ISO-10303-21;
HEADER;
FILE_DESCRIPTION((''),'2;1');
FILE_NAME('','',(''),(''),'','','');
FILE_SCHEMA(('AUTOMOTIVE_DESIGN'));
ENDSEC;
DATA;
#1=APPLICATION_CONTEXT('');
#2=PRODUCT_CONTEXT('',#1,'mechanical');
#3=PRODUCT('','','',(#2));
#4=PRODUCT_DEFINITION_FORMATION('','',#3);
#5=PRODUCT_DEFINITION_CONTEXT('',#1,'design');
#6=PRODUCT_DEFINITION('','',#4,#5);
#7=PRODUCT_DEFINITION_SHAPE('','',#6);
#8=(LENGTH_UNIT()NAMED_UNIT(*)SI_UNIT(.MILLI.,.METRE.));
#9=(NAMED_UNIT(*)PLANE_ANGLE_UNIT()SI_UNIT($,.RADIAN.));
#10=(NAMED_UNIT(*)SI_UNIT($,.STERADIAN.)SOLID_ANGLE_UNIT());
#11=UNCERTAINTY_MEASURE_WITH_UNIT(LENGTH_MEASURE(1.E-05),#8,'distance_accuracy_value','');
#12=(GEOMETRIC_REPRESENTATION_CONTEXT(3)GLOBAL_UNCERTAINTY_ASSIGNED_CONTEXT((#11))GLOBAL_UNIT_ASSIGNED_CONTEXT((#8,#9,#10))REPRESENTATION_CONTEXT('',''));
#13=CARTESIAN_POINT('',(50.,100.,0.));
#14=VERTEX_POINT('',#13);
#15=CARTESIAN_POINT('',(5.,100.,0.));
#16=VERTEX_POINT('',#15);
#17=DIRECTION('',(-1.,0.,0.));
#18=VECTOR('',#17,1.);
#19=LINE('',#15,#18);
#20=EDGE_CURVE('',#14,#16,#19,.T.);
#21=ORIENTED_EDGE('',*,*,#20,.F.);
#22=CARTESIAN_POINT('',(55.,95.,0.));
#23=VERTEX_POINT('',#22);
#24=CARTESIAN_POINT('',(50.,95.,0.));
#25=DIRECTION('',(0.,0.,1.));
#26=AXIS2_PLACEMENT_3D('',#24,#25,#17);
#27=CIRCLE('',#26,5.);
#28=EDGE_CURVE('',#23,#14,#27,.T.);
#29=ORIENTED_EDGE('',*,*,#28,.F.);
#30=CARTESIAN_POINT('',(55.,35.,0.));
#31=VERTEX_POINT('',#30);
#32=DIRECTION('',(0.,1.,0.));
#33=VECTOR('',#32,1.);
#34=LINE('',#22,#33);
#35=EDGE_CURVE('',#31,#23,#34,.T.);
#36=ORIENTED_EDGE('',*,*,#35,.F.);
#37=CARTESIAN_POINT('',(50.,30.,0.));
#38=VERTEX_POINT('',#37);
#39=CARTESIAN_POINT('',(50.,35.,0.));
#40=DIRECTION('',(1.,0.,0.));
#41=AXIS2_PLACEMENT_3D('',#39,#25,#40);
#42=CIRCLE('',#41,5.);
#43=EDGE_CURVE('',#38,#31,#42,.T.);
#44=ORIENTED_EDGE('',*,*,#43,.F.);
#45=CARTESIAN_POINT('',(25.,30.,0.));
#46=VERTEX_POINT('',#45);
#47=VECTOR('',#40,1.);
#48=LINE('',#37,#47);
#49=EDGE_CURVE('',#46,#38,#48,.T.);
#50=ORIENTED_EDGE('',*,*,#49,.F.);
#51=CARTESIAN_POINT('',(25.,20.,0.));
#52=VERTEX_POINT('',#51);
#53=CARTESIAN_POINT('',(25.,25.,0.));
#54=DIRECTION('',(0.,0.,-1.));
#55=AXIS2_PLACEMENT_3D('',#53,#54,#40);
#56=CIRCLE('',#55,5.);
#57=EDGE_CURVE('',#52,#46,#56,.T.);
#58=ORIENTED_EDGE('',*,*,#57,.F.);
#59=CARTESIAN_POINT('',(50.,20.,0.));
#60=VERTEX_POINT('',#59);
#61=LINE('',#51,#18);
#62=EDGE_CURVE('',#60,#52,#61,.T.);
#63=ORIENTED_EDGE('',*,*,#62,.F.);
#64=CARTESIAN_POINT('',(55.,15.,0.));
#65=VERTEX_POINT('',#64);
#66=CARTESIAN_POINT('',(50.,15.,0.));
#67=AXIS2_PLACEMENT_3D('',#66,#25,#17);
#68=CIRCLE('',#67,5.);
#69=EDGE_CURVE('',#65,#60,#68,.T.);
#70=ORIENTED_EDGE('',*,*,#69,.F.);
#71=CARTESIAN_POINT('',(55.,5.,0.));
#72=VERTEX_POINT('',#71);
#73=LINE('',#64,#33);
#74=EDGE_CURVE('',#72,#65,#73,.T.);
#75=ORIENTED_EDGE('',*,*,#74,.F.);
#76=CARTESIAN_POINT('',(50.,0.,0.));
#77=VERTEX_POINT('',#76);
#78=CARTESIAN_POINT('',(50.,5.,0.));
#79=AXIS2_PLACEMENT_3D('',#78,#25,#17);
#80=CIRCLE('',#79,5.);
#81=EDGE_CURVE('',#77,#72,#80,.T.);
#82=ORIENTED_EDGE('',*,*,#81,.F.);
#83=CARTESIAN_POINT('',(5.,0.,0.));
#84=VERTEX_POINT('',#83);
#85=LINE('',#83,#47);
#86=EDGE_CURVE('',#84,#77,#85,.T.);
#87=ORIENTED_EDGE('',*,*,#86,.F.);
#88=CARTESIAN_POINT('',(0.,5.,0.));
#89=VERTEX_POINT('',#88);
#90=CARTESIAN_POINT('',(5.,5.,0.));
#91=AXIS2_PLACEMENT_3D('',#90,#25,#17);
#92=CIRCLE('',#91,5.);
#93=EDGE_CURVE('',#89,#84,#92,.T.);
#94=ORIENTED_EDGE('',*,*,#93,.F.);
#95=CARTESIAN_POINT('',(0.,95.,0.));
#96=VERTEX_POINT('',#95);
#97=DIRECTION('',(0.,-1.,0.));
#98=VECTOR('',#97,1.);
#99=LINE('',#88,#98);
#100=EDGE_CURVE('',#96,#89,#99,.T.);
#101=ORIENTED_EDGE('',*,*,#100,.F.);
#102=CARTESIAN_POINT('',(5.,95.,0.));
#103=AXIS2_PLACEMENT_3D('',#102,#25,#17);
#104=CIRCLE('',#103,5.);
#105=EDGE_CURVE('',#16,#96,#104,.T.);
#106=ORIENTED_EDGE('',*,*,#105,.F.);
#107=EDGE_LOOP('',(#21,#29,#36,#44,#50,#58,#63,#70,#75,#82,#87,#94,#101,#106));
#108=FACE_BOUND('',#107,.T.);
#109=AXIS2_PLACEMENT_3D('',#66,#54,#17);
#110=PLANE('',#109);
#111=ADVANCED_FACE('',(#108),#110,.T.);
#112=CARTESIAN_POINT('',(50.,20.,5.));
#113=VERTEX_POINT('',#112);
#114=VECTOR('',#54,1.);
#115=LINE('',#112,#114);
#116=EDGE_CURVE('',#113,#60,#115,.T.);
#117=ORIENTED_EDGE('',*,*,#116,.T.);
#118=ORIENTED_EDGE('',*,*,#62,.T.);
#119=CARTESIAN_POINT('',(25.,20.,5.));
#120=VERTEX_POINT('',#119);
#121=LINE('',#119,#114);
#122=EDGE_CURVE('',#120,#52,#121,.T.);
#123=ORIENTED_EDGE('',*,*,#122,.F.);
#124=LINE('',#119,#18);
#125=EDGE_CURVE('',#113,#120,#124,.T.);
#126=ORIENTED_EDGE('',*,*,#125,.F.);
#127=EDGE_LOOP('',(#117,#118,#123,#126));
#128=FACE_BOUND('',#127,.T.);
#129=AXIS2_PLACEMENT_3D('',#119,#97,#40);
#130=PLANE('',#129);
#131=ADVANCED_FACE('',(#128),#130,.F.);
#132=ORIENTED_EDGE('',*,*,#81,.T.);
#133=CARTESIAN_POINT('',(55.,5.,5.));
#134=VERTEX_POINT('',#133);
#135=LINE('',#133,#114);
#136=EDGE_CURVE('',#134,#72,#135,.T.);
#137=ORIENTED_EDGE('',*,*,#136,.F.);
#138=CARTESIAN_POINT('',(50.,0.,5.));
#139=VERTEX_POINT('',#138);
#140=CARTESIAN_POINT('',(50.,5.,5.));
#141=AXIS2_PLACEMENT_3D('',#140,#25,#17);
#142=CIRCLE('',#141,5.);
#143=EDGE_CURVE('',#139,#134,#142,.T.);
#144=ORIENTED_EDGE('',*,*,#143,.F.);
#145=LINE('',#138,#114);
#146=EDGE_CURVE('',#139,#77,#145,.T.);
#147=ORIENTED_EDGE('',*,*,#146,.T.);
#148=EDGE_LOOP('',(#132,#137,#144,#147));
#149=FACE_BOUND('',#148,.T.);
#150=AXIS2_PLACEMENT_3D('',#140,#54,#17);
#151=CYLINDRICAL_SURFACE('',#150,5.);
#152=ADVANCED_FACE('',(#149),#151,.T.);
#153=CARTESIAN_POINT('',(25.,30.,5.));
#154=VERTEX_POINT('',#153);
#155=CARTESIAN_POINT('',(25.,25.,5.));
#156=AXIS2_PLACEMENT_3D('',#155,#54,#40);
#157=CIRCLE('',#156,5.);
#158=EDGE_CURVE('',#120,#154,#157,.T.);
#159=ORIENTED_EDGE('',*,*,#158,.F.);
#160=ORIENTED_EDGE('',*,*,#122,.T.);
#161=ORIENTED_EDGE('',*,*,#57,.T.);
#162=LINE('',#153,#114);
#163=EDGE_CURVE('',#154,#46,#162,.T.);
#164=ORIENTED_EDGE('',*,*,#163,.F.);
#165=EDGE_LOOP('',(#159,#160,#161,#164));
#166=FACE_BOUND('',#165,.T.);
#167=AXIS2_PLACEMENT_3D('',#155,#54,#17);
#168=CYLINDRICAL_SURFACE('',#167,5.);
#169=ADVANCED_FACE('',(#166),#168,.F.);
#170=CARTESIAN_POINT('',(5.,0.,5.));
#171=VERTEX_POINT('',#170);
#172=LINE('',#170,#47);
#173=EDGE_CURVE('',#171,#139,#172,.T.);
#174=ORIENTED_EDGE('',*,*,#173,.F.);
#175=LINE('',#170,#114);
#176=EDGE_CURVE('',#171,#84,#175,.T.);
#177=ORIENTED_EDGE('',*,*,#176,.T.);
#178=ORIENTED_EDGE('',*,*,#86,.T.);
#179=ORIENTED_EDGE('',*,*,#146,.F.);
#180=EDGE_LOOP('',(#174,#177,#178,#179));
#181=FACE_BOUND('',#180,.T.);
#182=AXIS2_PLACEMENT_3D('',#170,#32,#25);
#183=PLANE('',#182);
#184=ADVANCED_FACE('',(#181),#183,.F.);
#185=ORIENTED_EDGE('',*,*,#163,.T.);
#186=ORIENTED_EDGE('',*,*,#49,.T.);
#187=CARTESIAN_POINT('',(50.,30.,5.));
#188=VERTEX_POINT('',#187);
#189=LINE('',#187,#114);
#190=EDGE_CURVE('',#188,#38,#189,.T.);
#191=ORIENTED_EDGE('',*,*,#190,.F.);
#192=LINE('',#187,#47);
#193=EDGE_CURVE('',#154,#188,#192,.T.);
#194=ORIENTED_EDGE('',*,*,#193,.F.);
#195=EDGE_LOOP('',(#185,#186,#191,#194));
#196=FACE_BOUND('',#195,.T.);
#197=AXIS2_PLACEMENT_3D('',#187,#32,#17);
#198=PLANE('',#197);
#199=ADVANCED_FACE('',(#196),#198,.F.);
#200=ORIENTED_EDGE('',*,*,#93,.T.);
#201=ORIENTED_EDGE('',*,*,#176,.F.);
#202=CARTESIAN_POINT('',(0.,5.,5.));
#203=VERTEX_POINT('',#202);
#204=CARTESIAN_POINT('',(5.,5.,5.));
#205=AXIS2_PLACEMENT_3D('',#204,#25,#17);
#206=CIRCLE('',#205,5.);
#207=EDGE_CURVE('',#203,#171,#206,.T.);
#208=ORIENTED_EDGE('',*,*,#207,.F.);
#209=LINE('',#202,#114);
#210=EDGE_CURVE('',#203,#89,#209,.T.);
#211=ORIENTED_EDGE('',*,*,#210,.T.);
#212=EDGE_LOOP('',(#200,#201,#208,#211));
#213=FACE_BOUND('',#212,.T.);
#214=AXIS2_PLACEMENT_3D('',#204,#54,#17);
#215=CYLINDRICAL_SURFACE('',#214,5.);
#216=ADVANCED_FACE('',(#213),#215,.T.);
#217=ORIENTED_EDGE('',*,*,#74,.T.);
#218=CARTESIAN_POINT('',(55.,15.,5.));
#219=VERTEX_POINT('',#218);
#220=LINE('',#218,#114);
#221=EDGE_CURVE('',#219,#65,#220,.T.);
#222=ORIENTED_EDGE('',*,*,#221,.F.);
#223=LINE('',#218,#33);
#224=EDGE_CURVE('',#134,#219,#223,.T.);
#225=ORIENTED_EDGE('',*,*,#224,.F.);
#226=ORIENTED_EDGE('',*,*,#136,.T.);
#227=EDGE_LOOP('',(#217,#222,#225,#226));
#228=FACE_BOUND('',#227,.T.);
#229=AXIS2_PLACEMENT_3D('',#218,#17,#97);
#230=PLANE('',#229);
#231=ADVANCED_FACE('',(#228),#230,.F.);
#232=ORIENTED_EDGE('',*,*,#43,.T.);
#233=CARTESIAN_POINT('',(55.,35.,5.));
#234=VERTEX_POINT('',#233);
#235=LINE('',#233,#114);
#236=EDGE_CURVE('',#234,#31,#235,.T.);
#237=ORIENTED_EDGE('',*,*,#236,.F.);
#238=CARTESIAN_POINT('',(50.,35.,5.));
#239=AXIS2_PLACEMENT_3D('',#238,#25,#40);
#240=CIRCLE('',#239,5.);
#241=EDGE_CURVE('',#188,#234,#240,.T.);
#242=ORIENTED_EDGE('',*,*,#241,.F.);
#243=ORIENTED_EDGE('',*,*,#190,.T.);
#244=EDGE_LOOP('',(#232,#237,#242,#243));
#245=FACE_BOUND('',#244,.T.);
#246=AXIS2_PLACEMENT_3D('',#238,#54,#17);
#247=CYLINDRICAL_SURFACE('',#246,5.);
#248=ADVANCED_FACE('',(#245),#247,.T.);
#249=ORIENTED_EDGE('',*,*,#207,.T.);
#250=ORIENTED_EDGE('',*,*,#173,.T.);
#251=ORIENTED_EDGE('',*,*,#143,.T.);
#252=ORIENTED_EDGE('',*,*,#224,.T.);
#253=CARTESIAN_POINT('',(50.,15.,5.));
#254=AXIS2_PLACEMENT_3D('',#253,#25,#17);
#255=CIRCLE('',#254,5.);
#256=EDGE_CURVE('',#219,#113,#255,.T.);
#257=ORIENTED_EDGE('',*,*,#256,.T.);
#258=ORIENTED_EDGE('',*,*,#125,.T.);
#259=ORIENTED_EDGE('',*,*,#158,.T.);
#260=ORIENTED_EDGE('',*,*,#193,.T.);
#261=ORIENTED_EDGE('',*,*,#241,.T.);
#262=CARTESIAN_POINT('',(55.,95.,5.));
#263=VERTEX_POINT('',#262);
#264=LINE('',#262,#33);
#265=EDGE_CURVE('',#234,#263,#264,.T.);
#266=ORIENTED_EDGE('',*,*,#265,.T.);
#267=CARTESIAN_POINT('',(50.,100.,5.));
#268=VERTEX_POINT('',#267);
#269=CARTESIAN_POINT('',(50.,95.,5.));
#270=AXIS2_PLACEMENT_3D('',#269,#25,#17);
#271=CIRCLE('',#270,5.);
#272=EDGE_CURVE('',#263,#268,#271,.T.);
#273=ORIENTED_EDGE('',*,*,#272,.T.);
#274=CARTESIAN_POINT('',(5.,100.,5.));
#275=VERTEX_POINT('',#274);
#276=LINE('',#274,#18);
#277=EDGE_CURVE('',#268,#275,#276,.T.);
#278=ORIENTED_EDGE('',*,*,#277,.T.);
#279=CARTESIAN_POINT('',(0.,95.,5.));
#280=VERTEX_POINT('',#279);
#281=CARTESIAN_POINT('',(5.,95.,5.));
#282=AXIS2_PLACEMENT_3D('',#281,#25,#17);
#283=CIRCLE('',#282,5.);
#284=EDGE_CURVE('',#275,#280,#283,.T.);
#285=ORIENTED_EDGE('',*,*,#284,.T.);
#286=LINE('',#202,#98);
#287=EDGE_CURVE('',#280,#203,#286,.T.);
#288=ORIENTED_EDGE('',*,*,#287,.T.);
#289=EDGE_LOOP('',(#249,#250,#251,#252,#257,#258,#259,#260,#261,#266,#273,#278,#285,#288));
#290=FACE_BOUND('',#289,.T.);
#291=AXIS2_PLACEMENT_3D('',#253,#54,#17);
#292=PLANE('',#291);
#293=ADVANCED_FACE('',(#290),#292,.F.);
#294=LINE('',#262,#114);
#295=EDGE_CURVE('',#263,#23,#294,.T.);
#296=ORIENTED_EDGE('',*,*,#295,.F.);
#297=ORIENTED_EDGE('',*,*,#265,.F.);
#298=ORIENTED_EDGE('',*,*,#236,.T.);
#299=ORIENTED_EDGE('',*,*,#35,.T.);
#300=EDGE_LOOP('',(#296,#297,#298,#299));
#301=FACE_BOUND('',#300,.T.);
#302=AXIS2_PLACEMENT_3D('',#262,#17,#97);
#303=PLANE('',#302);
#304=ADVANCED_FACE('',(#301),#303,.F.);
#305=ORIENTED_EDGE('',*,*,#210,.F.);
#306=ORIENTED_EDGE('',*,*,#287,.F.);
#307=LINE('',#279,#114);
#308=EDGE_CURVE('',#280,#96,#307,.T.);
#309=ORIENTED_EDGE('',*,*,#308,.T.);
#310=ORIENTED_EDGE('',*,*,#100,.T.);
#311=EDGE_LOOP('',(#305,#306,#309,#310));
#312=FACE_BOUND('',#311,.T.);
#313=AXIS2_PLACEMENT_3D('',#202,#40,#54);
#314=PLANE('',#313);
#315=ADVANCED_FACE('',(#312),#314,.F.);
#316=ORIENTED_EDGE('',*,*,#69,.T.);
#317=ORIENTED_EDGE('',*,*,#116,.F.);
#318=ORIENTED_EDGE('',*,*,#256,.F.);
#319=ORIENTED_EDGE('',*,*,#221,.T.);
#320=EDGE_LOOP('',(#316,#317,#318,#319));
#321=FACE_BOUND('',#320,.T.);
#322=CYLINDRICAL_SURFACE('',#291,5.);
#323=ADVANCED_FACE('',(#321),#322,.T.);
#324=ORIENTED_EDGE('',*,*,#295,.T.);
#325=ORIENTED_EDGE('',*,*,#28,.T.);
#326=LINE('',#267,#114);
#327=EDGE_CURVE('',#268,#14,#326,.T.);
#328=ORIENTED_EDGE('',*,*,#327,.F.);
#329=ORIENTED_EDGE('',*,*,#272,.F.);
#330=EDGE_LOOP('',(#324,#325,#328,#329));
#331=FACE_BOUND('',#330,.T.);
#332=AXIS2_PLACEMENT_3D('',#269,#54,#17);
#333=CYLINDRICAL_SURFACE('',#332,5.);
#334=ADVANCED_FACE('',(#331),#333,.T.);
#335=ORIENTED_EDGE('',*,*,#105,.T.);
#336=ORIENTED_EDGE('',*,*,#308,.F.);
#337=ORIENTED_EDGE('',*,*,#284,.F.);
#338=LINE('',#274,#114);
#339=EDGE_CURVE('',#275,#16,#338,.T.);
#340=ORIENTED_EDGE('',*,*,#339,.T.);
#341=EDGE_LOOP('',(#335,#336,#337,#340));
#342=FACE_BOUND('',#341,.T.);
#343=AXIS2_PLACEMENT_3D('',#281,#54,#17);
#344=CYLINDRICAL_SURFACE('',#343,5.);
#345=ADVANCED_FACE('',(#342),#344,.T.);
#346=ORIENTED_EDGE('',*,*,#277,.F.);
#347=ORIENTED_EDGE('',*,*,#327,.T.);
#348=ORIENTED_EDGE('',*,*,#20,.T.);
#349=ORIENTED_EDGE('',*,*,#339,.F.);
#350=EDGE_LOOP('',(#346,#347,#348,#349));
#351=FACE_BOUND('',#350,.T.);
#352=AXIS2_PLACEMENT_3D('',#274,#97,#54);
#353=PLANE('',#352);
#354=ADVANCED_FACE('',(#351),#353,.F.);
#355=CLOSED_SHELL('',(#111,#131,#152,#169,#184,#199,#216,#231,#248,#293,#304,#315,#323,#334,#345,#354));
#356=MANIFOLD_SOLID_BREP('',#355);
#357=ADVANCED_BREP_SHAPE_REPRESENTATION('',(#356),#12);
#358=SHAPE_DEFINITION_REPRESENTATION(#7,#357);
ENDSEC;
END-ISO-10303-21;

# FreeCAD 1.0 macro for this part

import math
import FreeCAD as App
import Part
import Sketcher

V = App.Vector

doc = App.newDocument("Part")
params = doc.addObject("Spreadsheet::Sheet", "Params")
for row, (alias, value) in enumerate([
    ("sketch1_radius", "5 mm"),
    ("sketch1_width", "45 mm"),
    ("sketch1_width2", "25 mm"),
    ("sketch1_height", "60 mm"),
    ("sketch1_height2", "90 mm"),
    ("pad1_length", "5 mm"),
], start=1):
    params.set(f"A{row}", alias)
    params.set(f"B{row}", "=" + value)
    params.setAlias(f"B{row}", alias)

body = doc.addObject("PartDesign::Body", "Body")

# Sketch on XY plane
sketch1 = body.newObject("Sketcher::SketchObject", "Sketch")
sketch1.AttachmentSupport = (doc.getObject("XY_Plane"), [""])
sketch1.MapMode = "FlatFace"
sketch1.addGeometry(Part.LineSegment(V(55, 35, 0), V(55, 95, 0)), False)
sketch1.addGeometry(Part.ArcOfCircle(Part.Circle(V(50, 95, 0), V(0, 0, 1), 5), math.radians(0), math.radians(90)), False)
sketch1.addGeometry(Part.LineSegment(V(50, 100, 0), V(5, 100, 0)), False)
sketch1.addGeometry(Part.ArcOfCircle(Part.Circle(V(5, 95, 0), V(0, 0, 1), 5), math.radians(90), math.radians(180)), False)
sketch1.addGeometry(Part.LineSegment(V(0, 95, 0), V(0, 5, 0)), False)
sketch1.addGeometry(Part.ArcOfCircle(Part.Circle(V(5, 5, 0), V(0, 0, 1), 5), math.radians(180), math.radians(270)), False)
sketch1.addGeometry(Part.LineSegment(V(5, 0, 0), V(50, 0, 0)), False)
sketch1.addGeometry(Part.ArcOfCircle(Part.Circle(V(50, 5, 0), V(0, 0, 1), 5), math.radians(-90), math.radians(0)), False)
sketch1.addGeometry(Part.LineSegment(V(55, 5, 0), V(55, 15, 0)), False)
sketch1.addGeometry(Part.ArcOfCircle(Part.Circle(V(50, 15, 0), V(0, 0, 1), 5), math.radians(0), math.radians(90)), False)
sketch1.addGeometry(Part.LineSegment(V(50, 20, 0), V(25, 20, 0)), False)
sketch1.addGeometry(Part.ArcOfCircle(Part.Circle(V(25, 25, 0), V(0, 0, 1), 5), math.radians(90), math.radians(270)), False)
sketch1.addGeometry(Part.LineSegment(V(25, 30, 0), V(50, 30, 0)), False)
sketch1.addGeometry(Part.ArcOfCircle(Part.Circle(V(50, 35, 0), V(0, 0, 1), 5), math.radians(-90), math.radians(0)), False)
sketch1.addConstraint(Sketcher.Constraint("Tangent", 0, 2, 1, 1))
sketch1.addConstraint(Sketcher.Constraint("Tangent", 1, 2, 2, 1))
sketch1.addConstraint(Sketcher.Constraint("Tangent", 2, 2, 3, 1))
sketch1.addConstraint(Sketcher.Constraint("Tangent", 3, 2, 4, 1))
sketch1.addConstraint(Sketcher.Constraint("Tangent", 4, 2, 5, 1))
sketch1.addConstraint(Sketcher.Constraint("Tangent", 5, 2, 6, 1))
sketch1.addConstraint(Sketcher.Constraint("Tangent", 6, 2, 7, 1))
sketch1.addConstraint(Sketcher.Constraint("Tangent", 7, 2, 8, 1))
sketch1.addConstraint(Sketcher.Constraint("Tangent", 8, 2, 9, 1))
sketch1.addConstraint(Sketcher.Constraint("Tangent", 9, 2, 10, 1))
sketch1.addConstraint(Sketcher.Constraint("Tangent", 10, 2, 11, 2))
sketch1.addConstraint(Sketcher.Constraint("Tangent", 11, 1, 12, 1))
sketch1.addConstraint(Sketcher.Constraint("Tangent", 12, 2, 13, 1))
sketch1.addConstraint(Sketcher.Constraint("Tangent", 13, 2, 0, 1))
sketch1.addConstraint(Sketcher.Constraint("Vertical", 0))
sketch1.addConstraint(Sketcher.Constraint("Horizontal", 2))
sketch1.addConstraint(Sketcher.Constraint("Vertical", 4))
sketch1.addConstraint(Sketcher.Constraint("Horizontal", 6))
sketch1.addConstraint(Sketcher.Constraint("Vertical", 8))
sketch1.addConstraint(Sketcher.Constraint("Horizontal", 10))
sketch1.addConstraint(Sketcher.Constraint("Horizontal", 12))
sketch1.addConstraint(Sketcher.Constraint("Equal", 1, 3))
sketch1.addConstraint(Sketcher.Constraint("Equal", 3, 5))
sketch1.addConstraint(Sketcher.Constraint("Equal", 5, 7))
sketch1.addConstraint(Sketcher.Constraint("Equal", 7, 9))
sketch1.addConstraint(Sketcher.Constraint("Equal", 9, 11))
sketch1.addConstraint(Sketcher.Constraint("Equal", 11, 13))
sketch1.addConstraint(Sketcher.Constraint("PointOnObject", 3, 2, -2))
sketch1.addConstraint(Sketcher.Constraint("PointOnObject", 5, 2, -1))
sketch1.addConstraint(Sketcher.Constraint("Vertical", 1, 3, 7, 3))
sketch1.addConstraint(Sketcher.Constraint("Radius", 1, 5.0))
sketch1.addConstraint(Sketcher.Constraint("DistanceX", 2, 2, 2, 1, 45.0))
sketch1.addConstraint(Sketcher.Constraint("DistanceX", 10, 2, 10, 1, 25.0))
sketch1.addConstraint(Sketcher.Constraint("DistanceY", 0, 1, 0, 2, 60.0))
sketch1.addConstraint(Sketcher.Constraint("DistanceY", 4, 2, 4, 1, 90.0))
sketch1.setExpression("Constraints[30]", "Params.sketch1_radius")
sketch1.setExpression("Constraints[31]", "Params.sketch1_width")
sketch1.setExpression("Constraints[32]", "Params.sketch1_width2")
sketch1.setExpression("Constraints[33]", "Params.sketch1_height")
sketch1.setExpression("Constraints[34]", "Params.sketch1_height2")
pad1 = body.newObject("PartDesign::Pad", "Pad")
pad1.Profile = sketch1
pad1.setExpression("Length", "Params.pad1_length")

doc.recompute()
